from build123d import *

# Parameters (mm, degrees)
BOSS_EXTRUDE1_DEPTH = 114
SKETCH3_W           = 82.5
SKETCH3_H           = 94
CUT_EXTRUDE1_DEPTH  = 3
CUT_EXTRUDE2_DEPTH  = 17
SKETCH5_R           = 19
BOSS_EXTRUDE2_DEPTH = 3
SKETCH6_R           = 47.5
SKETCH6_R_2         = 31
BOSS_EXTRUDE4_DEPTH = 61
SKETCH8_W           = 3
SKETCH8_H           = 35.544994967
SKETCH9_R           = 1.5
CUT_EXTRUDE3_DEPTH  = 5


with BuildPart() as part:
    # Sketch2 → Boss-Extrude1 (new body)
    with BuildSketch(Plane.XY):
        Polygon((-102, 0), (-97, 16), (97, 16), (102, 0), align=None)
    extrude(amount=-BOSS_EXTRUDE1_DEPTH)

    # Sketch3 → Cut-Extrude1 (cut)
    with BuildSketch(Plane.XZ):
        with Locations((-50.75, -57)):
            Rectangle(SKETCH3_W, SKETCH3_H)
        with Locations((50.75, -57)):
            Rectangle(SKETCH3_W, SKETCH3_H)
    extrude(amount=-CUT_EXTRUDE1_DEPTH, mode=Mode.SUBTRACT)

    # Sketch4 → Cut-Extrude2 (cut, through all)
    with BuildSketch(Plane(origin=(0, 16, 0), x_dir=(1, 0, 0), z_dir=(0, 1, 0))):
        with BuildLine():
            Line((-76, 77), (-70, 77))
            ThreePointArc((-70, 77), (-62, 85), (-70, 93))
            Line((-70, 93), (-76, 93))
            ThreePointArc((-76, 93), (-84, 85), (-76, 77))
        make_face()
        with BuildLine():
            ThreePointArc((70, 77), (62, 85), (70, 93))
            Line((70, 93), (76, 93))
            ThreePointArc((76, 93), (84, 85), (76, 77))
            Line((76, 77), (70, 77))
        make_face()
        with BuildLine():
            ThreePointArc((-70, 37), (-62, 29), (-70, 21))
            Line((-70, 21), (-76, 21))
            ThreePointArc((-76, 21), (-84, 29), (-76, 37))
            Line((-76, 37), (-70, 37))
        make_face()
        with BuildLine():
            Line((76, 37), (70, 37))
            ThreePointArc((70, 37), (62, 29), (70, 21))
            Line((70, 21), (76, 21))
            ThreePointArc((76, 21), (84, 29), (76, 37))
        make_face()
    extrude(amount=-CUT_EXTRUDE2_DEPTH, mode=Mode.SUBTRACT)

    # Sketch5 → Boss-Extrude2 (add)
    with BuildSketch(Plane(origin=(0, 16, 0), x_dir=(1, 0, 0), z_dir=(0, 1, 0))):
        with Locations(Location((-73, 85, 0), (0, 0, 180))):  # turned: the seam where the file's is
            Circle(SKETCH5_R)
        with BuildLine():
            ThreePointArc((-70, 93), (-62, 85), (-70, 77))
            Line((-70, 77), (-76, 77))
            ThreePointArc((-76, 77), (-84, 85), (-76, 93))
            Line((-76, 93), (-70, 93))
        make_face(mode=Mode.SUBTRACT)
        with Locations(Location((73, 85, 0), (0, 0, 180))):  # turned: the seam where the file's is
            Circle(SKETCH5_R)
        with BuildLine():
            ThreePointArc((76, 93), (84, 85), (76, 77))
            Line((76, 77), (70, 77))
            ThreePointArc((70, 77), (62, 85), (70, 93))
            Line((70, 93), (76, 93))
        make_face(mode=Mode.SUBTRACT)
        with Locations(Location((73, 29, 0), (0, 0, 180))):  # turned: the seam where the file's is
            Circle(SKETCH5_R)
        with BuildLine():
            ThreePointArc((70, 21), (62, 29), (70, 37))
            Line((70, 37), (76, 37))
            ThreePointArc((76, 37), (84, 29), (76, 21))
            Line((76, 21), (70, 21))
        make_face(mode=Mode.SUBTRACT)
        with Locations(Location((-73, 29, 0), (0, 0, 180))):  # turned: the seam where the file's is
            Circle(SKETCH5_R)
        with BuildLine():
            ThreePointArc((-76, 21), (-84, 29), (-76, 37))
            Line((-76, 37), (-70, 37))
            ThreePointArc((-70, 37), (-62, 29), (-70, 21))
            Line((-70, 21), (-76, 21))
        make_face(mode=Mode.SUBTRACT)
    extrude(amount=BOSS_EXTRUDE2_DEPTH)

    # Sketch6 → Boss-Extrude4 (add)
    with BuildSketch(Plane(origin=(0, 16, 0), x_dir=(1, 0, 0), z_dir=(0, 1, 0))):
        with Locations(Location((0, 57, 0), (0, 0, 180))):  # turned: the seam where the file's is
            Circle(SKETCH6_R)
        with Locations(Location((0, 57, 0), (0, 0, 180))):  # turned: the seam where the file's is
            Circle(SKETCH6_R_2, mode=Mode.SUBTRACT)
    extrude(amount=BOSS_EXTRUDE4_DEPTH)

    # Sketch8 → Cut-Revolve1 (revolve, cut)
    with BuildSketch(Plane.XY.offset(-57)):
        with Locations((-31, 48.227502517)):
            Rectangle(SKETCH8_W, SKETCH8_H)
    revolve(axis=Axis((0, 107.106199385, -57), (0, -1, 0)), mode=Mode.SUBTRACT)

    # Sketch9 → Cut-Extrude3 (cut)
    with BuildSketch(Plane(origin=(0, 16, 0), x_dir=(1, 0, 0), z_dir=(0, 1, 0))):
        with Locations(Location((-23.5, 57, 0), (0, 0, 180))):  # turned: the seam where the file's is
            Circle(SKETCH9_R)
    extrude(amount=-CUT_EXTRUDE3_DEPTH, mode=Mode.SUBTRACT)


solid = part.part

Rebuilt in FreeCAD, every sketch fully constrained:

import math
import FreeCAD as App
import Part
import Sketcher
from FreeCAD import Vector
Q = App.Units.Quantity

doc = App.newDocument("Part")
params = doc.addObject("Spreadsheet::Sheet", "Params")
for row, (alias, value) in enumerate([
    ("sketch1_width", "204 mm"),
    ("sketch1_width2", "194 mm"),
    ("pad1_length", "114 mm"),
    ("sketch2_height", "94 mm"),
    ("sketch2_width", "82.5 mm"),
    ("pocket1_length", "3 mm"),
    ("sketch3_radius", "8 mm"),
    ("sketch3_width", "6 mm"),
    ("sketch4_diameter", "38 mm"),
    ("sketch4_radius", "8 mm"),
    ("sketch4_width", "6 mm"),
    ("pad2_length", "3 mm"),
    ("sketch5_diameter", "95 mm"),
    ("sketch5_diameter2", "62 mm"),
    ("pad3_length", "61 mm"),
    ("sketch6_width", "3 mm"),
    ("groove_angle", "360 deg"),
    ("sketch7_diameter", "3 mm"),
    ("pocket3_length", "5 mm"),
], start=1):
    params.set(f"A{row}", alias)
    params.set(f"B{row}", "=" + value)
    params.setAlias(f"B{row}", alias)

body = doc.addObject("PartDesign::Body", "Body")

sketch1 = body.newObject("Sketcher::SketchObject", "Sketch")
sketch1.AttachmentSupport = (doc.getObject("XY_Plane"), [""])
sketch1.MapMode = "FlatFace"
sketch1.addGeometry(Part.LineSegment(Vector(-97, 16, 0), Vector(-102, 0, 0)), False)
sketch1.addGeometry(Part.LineSegment(Vector(-102, 0, 0), Vector(102, 0, 0)), False)
sketch1.addGeometry(Part.LineSegment(Vector(102, 0, 0), Vector(97, 16, 0)), False)
sketch1.addGeometry(Part.LineSegment(Vector(97, 16, 0), Vector(-97, 16, 0)), False)
sketch1.addConstraint(Sketcher.Constraint("Coincident", 0, 2, 1, 1))
sketch1.addConstraint(Sketcher.Constraint("Coincident", 1, 2, 2, 1))
sketch1.addConstraint(Sketcher.Constraint("Coincident", 2, 2, 3, 1))
sketch1.addConstraint(Sketcher.Constraint("Coincident", 3, 2, 0, 1))
sketch1.addConstraint(Sketcher.Constraint("Horizontal", 1))
sketch1.addConstraint(Sketcher.Constraint("Horizontal", 3))
sketch1.addConstraint(Sketcher.Constraint("Symmetric", 0, 2, 1, 2, -1, 1))
sketch1.addConstraint(Sketcher.Constraint("Equal", 0, 2))
sketch1.addConstraint(Sketcher.Constraint("DistanceX", 1, 1, 1, 2, Q("204 mm")))
sketch1.addConstraint(Sketcher.Constraint("DistanceX", 3, 2, 3, 1, Q("194 mm")))
sketch1.addConstraint(Sketcher.Constraint("DistanceY", -1, 1, 2, 2, Q("16 mm")))
sketch1.setExpression("Constraints[8]", "Params.sketch1_width")
sketch1.setExpression("Constraints[9]", "Params.sketch1_width2")
pad1 = body.newObject("PartDesign::Pad", "Pad")
pad1.Profile = sketch1
pad1.setExpression("Length", "Params.pad1_length")
pad1.Reversed = True

sketch2 = body.newObject("Sketcher::SketchObject", "Sketch001")
sketch2.AttachmentSupport = (doc.getObject("XZ_Plane"), [""])
sketch2.MapMode = "FlatFace"
sketch2.addGeometry(Part.LineSegment(Vector(-92, -10, 0), Vector(-92, -104, 0)), False)
sketch2.addGeometry(Part.LineSegment(Vector(-92, -104, 0), Vector(-10, -104, 0)), False)
sketch2.addGeometry(Part.LineSegment(Vector(-10, -104, 0), Vector(-10, -10, 0)), False)
sketch2.addGeometry(Part.LineSegment(Vector(-10, -10, 0), Vector(-92, -10, 0)), False)
sketch2.addGeometry(Part.LineSegment(Vector(10, -10, 0), Vector(10, -104, 0)), False)
sketch2.addGeometry(Part.LineSegment(Vector(10, -104, 0), Vector(92, -104, 0)), False)
sketch2.addGeometry(Part.LineSegment(Vector(92, -104, 0), Vector(92, -10, 0)), False)
sketch2.addGeometry(Part.LineSegment(Vector(92, -10, 0), Vector(10, -10, 0)), False)
sketch2.addConstraint(Sketcher.Constraint("Coincident", 0, 2, 1, 1))
sketch2.addConstraint(Sketcher.Constraint("Coincident", 1, 2, 2, 1))
sketch2.addConstraint(Sketcher.Constraint("Coincident", 2, 2, 3, 1))
sketch2.addConstraint(Sketcher.Constraint("Coincident", 3, 2, 0, 1))
sketch2.addConstraint(Sketcher.Constraint("Coincident", 4, 2, 5, 1))
sketch2.addConstraint(Sketcher.Constraint("Coincident", 5, 2, 6, 1))
sketch2.addConstraint(Sketcher.Constraint("Coincident", 6, 2, 7, 1))
sketch2.addConstraint(Sketcher.Constraint("Coincident", 7, 2, 4, 1))
sketch2.addConstraint(Sketcher.Constraint("Vertical", 0))
sketch2.addConstraint(Sketcher.Constraint("Horizontal", 1))
sketch2.addConstraint(Sketcher.Constraint("Vertical", 2))
sketch2.addConstraint(Sketcher.Constraint("Horizontal", 3))
sketch2.addConstraint(Sketcher.Constraint("Vertical", 4))
sketch2.addConstraint(Sketcher.Constraint("Horizontal", 5))
sketch2.addConstraint(Sketcher.Constraint("Vertical", 6))
sketch2.addConstraint(Sketcher.Constraint("Horizontal", 7))
sketch2.addConstraint(Sketcher.Constraint("Symmetric", 1, 2, 4, 2, -2))
sketch2.addConstraint(Sketcher.Constraint("Symmetric", 3, 2, 6, 2, -2))
sketch2.addConstraint(Sketcher.Constraint("DistanceY", 0, 2, 0, 1, Q("94 mm")))
sketch2.addConstraint(Sketcher.Constraint("DistanceX", 1, 1, 1, 2, Q("82.5 mm")))
sketch2.addConstraint(Sketcher.Constraint("DistanceX", 0, 2, -1, 1, Q("92 mm")))
sketch2.addConstraint(Sketcher.Constraint("DistanceY", 0, 2, -1, 1, Q("104 mm")))
sketch2.setExpression("Constraints[18]", "Params.sketch2_height")
sketch2.setExpression("Constraints[19]", "Params.sketch2_width")
pocket1 = body.newObject("PartDesign::Pocket", "Pocket")
pocket1.Profile = sketch2
pocket1.setExpression("Length", "Params.pocket1_length")

sketch3 = body.newObject("Sketcher::SketchObject", "Sketch002")
sketch3.AttachmentSupport = (doc.getObject("XZ_Plane"), [""])
sketch3.MapMode = "FlatFace"
sketch3.AttachmentOffset = App.Placement(Vector(0, 0, -16), App.Rotation())
sketch3.addGeometry(Part.LineSegment(Vector(-76, -77, 0), Vector(-70, -77, 0)), False)
sketch3.addGeometry(Part.ArcOfCircle(Part.Circle(Vector(-70, -85, 0), Vector(0, 0, 1), 8), math.radians(-90), math.radians(90)), False)
sketch3.addGeometry(Part.LineSegment(Vector(-70, -93, 0), Vector(-76, -93, 0)), False)
sketch3.addGeometry(Part.ArcOfCircle(Part.Circle(Vector(-76, -85, 0), Vector(0, 0, 1), 8), math.radians(90), math.radians(270)), False)
sketch3.addGeometry(Part.ArcOfCircle(Part.Circle(Vector(70, -85, 0), Vector(0, 0, 1), 8), math.radians(90), math.radians(270)), False)
sketch3.addGeometry(Part.LineSegment(Vector(70, -77, 0), Vector(76, -77, 0)), False)
sketch3.addGeometry(Part.ArcOfCircle(Part.Circle(Vector(76, -85, 0), Vector(0, 0, 1), 8), math.radians(-90), math.radians(90)), False)
sketch3.addGeometry(Part.LineSegment(Vector(76, -93, 0), Vector(70, -93, 0)), False)
sketch3.addGeometry(Part.ArcOfCircle(Part.Circle(Vector(-70, -29, 0), Vector(0, 0, 1), 8), math.radians(-90), math.radians(90)), False)
sketch3.addGeometry(Part.LineSegment(Vector(-70, -37, 0), Vector(-76, -37, 0)), False)
sketch3.addGeometry(Part.ArcOfCircle(Part.Circle(Vector(-76, -29, 0), Vector(0, 0, 1), 8), math.radians(90), math.radians(270)), False)
sketch3.addGeometry(Part.LineSegment(Vector(-76, -21, 0), Vector(-70, -21, 0)), False)
sketch3.addGeometry(Part.LineSegment(Vector(76, -37, 0), Vector(70, -37, 0)), False)
sketch3.addGeometry(Part.ArcOfCircle(Part.Circle(Vector(70, -29, 0), Vector(0, 0, 1), 8), math.radians(90), math.radians(270)), False)
sketch3.addGeometry(Part.LineSegment(Vector(70, -21, 0), Vector(76, -21, 0)), False)
sketch3.addGeometry(Part.ArcOfCircle(Part.Circle(Vector(76, -29, 0), Vector(0, 0, 1), 8), math.radians(-90), math.radians(90)), False)
sketch3.addConstraint(Sketcher.Constraint("Tangent", 0, 2, 1, 2))
sketch3.addConstraint(Sketcher.Constraint("Tangent", 1, 1, 2, 1))
sketch3.addConstraint(Sketcher.Constraint("Tangent", 2, 2, 3, 2))
sketch3.addConstraint(Sketcher.Constraint("Tangent", 3, 1, 0, 1))
sketch3.addConstraint(Sketcher.Constraint("Tangent", 4, 1, 5, 1))
sketch3.addConstraint(Sketcher.Constraint("Tangent", 5, 2, 6, 2))
sketch3.addConstraint(Sketcher.Constraint("Tangent", 6, 1, 7, 1))
sketch3.addConstraint(Sketcher.Constraint("Tangent", 7, 2, 4, 2))
sketch3.addConstraint(Sketcher.Constraint("Tangent", 8, 1, 9, 1))
sketch3.addConstraint(Sketcher.Constraint("Tangent", 9, 2, 10, 2))
sketch3.addConstraint(Sketcher.Constraint("Tangent", 10, 1, 11, 1))
sketch3.addConstraint(Sketcher.Constraint("Tangent", 11, 2, 8, 2))
sketch3.addConstraint(Sketcher.Constraint("Tangent", 12, 2, 13, 2))
sketch3.addConstraint(Sketcher.Constraint("Tangent", 13, 1, 14, 1))
sketch3.addConstraint(Sketcher.Constraint("Tangent", 14, 2, 15, 2))
sketch3.addConstraint(Sketcher.Constraint("Tangent", 15, 1, 12, 1))
sketch3.addConstraint(Sketcher.Constraint("Horizontal", 0))
sketch3.addConstraint(Sketcher.Constraint("Horizontal", 2))
sketch3.addConstraint(Sketcher.Constraint("Horizontal", 5))
sketch3.addConstraint(Sketcher.Constraint("Horizontal", 7))
sketch3.addConstraint(Sketcher.Constraint("Horizontal", 9))
sketch3.addConstraint(Sketcher.Constraint("Horizontal", 11))
sketch3.addConstraint(Sketcher.Constraint("Horizontal", 12))
sketch3.addConstraint(Sketcher.Constraint("Horizontal", 14))
sketch3.addConstraint(Sketcher.Constraint("Equal", 3, 4))
sketch3.addConstraint(Sketcher.Constraint("Equal", 6, 8))
sketch3.addConstraint(Sketcher.Constraint("Equal", 10, 13))
sketch3.addConstraint(Sketcher.Constraint("Symmetric", 1, 3, 4, 3, -2))
sketch3.addConstraint(Sketcher.Constraint("Symmetric", 8, 3, 13, 3, -2))
sketch3.addConstraint(Sketcher.Constraint("Vertical", 1, 3, 8, 3))
sketch3.addConstraint(Sketcher.Constraint("Vertical", 3, 3, 10, 3))
sketch3.addConstraint(Sketcher.Constraint("Vertical", 6, 3, 15, 3))
sketch3.addConstraint(Sketcher.Constraint("Equal", 2, 5))
sketch3.addConstraint(Sketcher.Constraint("Radius", 1, Q("8 mm")))
sketch3.addConstraint(Sketcher.Constraint("DistanceX", 0, 1, 0, 2, Q("6 mm")))
sketch3.addConstraint(Sketcher.Constraint("DistanceX", 1, 3, -1, 1, Q("70 mm")))
sketch3.addConstraint(Sketcher.Constraint("DistanceY", 1, 3, -1, 1, Q("85 mm")))
sketch3.addConstraint(Sketcher.Constraint("DistanceY", 8, 3, -1, 1, Q("29 mm")))
sketch3.setExpression("Constraints[33]", "Params.sketch3_radius")
sketch3.setExpression("Constraints[34]", "Params.sketch3_width")
pocket2 = body.newObject("PartDesign::Pocket", "Pocket001")
pocket2.Profile = sketch3
pocket2.Type = "ThroughAll"
pocket2.Reversed = True

sketch4 = body.newObject("Sketcher::SketchObject", "Sketch003")
sketch4.AttachmentSupport = (doc.getObject("XZ_Plane"), [""])
sketch4.MapMode = "FlatFace"
sketch4.AttachmentOffset = App.Placement(Vector(0, 0, -16), App.Rotation())
sketch4.addGeometry(Part.Circle(Vector(-73, -85, 0), Vector(0, 0, 1), 19), False)
sketch4.addGeometry(Part.LineSegment(Vector(-76, -93, 0), Vector(-70, -93, 0)), False)
sketch4.addGeometry(Part.ArcOfCircle(Part.Circle(Vector(-70, -85, 0), Vector(0, 0, 1), 8), math.radians(-90), math.radians(90)), False)
sketch4.addGeometry(Part.LineSegment(Vector(-70, -77, 0), Vector(-76, -77, 0)), False)
sketch4.addGeometry(Part.ArcOfCircle(Part.Circle(Vector(-76, -85, 0), Vector(0, 0, 1), 8), math.radians(90), math.radians(270)), False)
sketch4.addGeometry(Part.Circle(Vector(73, -85, 0), Vector(0, 0, 1), 19), False)
sketch4.addGeometry(Part.LineSegment(Vector(70, -93, 0), Vector(76, -93, 0)), False)
sketch4.addGeometry(Part.ArcOfCircle(Part.Circle(Vector(76, -85, 0), Vector(0, 0, 1), 8), math.radians(-90), math.radians(90)), False)
sketch4.addGeometry(Part.LineSegment(Vector(76, -77, 0), Vector(70, -77, 0)), False)
sketch4.addGeometry(Part.ArcOfCircle(Part.Circle(Vector(70, -85, 0), Vector(0, 0, 1), 8), math.radians(90), math.radians(270)), False)
sketch4.addGeometry(Part.Circle(Vector(73, -29, 0), Vector(0, 0, 1), 19), False)
sketch4.addGeometry(Part.LineSegment(Vector(76, -21, 0), Vector(70, -21, 0)), False)
sketch4.addGeometry(Part.ArcOfCircle(Part.Circle(Vector(70, -29, 0), Vector(0, 0, 1), 8), math.radians(90), math.radians(270)), False)
sketch4.addGeometry(Part.LineSegment(Vector(70, -37, 0), Vector(76, -37, 0)), False)
sketch4.addGeometry(Part.ArcOfCircle(Part.Circle(Vector(76, -29, 0), Vector(0, 0, 1), 8), math.radians(-90), math.radians(90)), False)
sketch4.addGeometry(Part.Circle(Vector(-73, -29, 0), Vector(0, 0, 1), 19), False)
sketch4.addGeometry(Part.LineSegment(Vector(-70, -21, 0), Vector(-76, -21, 0)), False)
sketch4.addGeometry(Part.ArcOfCircle(Part.Circle(Vector(-76, -29, 0), Vector(0, 0, 1), 8), math.radians(90), math.radians(270)), False)
sketch4.addGeometry(Part.LineSegment(Vector(-76, -37, 0), Vector(-70, -37, 0)), False)
sketch4.addGeometry(Part.ArcOfCircle(Part.Circle(Vector(-70, -29, 0), Vector(0, 0, 1), 8), math.radians(-90), math.radians(90)), False)
sketch4.addConstraint(Sketcher.Constraint("Tangent", 1, 2, 2, 1))
sketch4.addConstraint(Sketcher.Constraint("Tangent", 2, 2, 3, 1))
sketch4.addConstraint(Sketcher.Constraint("Tangent", 3, 2, 4, 1))
sketch4.addConstraint(Sketcher.Constraint("Tangent", 4, 2, 1, 1))
sketch4.addConstraint(Sketcher.Constraint("Tangent", 6, 2, 7, 1))
sketch4.addConstraint(Sketcher.Constraint("Tangent", 7, 2, 8, 1))
sketch4.addConstraint(Sketcher.Constraint("Tangent", 8, 2, 9, 1))
sketch4.addConstraint(Sketcher.Constraint("Tangent", 9, 2, 6, 1))
sketch4.addConstraint(Sketcher.Constraint("Tangent", 11, 2, 12, 1))
sketch4.addConstraint(Sketcher.Constraint("Tangent", 12, 2, 13, 1))
sketch4.addConstraint(Sketcher.Constraint("Tangent", 13, 2, 14, 1))
sketch4.addConstraint(Sketcher.Constraint("Tangent", 14, 2, 11, 1))
sketch4.addConstraint(Sketcher.Constraint("Tangent", 16, 2, 17, 1))
sketch4.addConstraint(Sketcher.Constraint("Tangent", 17, 2, 18, 1))
sketch4.addConstraint(Sketcher.Constraint("Tangent", 18, 2, 19, 1))
sketch4.addConstraint(Sketcher.Constraint("Tangent", 19, 2, 16, 1))
sketch4.addConstraint(Sketcher.Constraint("Horizontal", 1))
sketch4.addConstraint(Sketcher.Constraint("Horizontal", 3))
sketch4.addConstraint(Sketcher.Constraint("Horizontal", 6))
sketch4.addConstraint(Sketcher.Constraint("Horizontal", 8))
sketch4.addConstraint(Sketcher.Constraint("Horizontal", 11))
sketch4.addConstraint(Sketcher.Constraint("Horizontal", 13))
sketch4.addConstraint(Sketcher.Constraint("Horizontal", 16))
sketch4.addConstraint(Sketcher.Constraint("Horizontal", 18))
sketch4.addConstraint(Sketcher.Constraint("Equal", 0, 5))
sketch4.addConstraint(Sketcher.Constraint("Equal", 4, 7))
sketch4.addConstraint(Sketcher.Constraint("Equal", 5, 10))
sketch4.addConstraint(Sketcher.Constraint("Equal", 9, 12))
sketch4.addConstraint(Sketcher.Constraint("Equal", 10, 15))
sketch4.addConstraint(Sketcher.Constraint("Equal", 14, 17))
sketch4.addConstraint(Sketcher.Constraint("Symmetric", 0, 3, 5, 3, -2))
sketch4.addConstraint(Sketcher.Constraint("Symmetric", 4, 3, 7, 3, -2))
sketch4.addConstraint(Sketcher.Constraint("Symmetric", 10, 3, 15, 3, -2))
sketch4.addConstraint(Sketcher.Constraint("Symmetric", 14, 3, 17, 3, -2))
sketch4.addConstraint(Sketcher.Constraint("Horizontal", 0, 3, 2, 3))
sketch4.addConstraint(Sketcher.Constraint("Horizontal", 10, 3, 12, 3))
sketch4.addConstraint(Sketcher.Constraint("Vertical", 5, 3, 10, 3))
sketch4.addConstraint(Sketcher.Constraint("Vertical", 9, 3, 12, 3))
sketch4.addConstraint(Sketcher.Constraint("Vertical", 7, 3, 14, 3))
sketch4.addConstraint(Sketcher.Constraint("Vertical", 2, 3, 19, 3))
sketch4.addConstraint(Sketcher.Constraint("Equal", 3, 6))
sketch4.addConstraint(Sketcher.Constraint("Diameter", 0, Q("38 mm")))
sketch4.addConstraint(Sketcher.Constraint("Radius", 2, Q("8 mm")))
sketch4.addConstraint(Sketcher.Constraint("DistanceX", 1, 1, 1, 2, Q("6 mm")))
sketch4.addConstraint(Sketcher.Constraint("DistanceX", 0, 3, -1, 1, Q("73 mm")))
sketch4.addConstraint(Sketcher.Constraint("DistanceY", 0, 3, -1, 1, Q("85 mm")))
sketch4.addConstraint(Sketcher.Constraint("DistanceX", 2, 3, -1, 1, Q("70 mm")))
sketch4.addConstraint(Sketcher.Constraint("DistanceY", 10, 3, -1, 1, Q("29 mm")))
sketch4.setExpression("Constraints[41]", "Params.sketch4_diameter")
sketch4.setExpression("Constraints[42]", "Params.sketch4_radius")
sketch4.setExpression("Constraints[43]", "Params.sketch4_width")
pad2 = body.newObject("PartDesign::Pad", "Pad001")
pad2.Profile = sketch4
pad2.setExpression("Length", "Params.pad2_length")
pad2.Reversed = True

sketch5 = body.newObject("Sketcher::SketchObject", "Sketch004")
sketch5.AttachmentSupport = (doc.getObject("XZ_Plane"), [""])
sketch5.MapMode = "FlatFace"
sketch5.AttachmentOffset = App.Placement(Vector(0, 0, -16), App.Rotation())
sketch5.addGeometry(Part.Circle(Vector(0, -57, 0), Vector(0, 0, 1), 48), False)
sketch5.addGeometry(Part.Circle(Vector(0, -57, 0), Vector(0, 0, 1), 31), False)
sketch5.addConstraint(Sketcher.Constraint("Coincident", 1, 3, 0, 3))
sketch5.addConstraint(Sketcher.Constraint("PointOnObject", 0, 3, -2))
sketch5.addConstraint(Sketcher.Constraint("Diameter", 0, Q("95 mm")))
sketch5.addConstraint(Sketcher.Constraint("Diameter", 1, Q("62 mm")))
sketch5.addConstraint(Sketcher.Constraint("DistanceY", 0, 3, -1, 1, Q("57 mm")))
sketch5.setExpression("Constraints[2]", "Params.sketch5_diameter")
sketch5.setExpression("Constraints[3]", "Params.sketch5_diameter2")
pad3 = body.newObject("PartDesign::Pad", "Pad002")
pad3.Profile = sketch5
pad3.setExpression("Length", "Params.pad3_length")
pad3.Reversed = True

sketch6 = body.newObject("Sketcher::SketchObject", "Sketch005")
sketch6.AttachmentSupport = (doc.getObject("XY_Plane"), [""])
sketch6.MapMode = "FlatFace"
sketch6.AttachmentOffset = App.Placement(Vector(0, 0, -57), App.Rotation())
sketch6.addGeometry(Part.LineSegment(Vector(-32.5, 66, 0), Vector(-32.5, 30.5, 0)), False)
sketch6.addGeometry(Part.LineSegment(Vector(-32.5, 30.5, 0), Vector(-29.5, 30.5, 0)), False)
sketch6.addGeometry(Part.LineSegment(Vector(-29.5, 30.5, 0), Vector(-29.5, 66, 0)), False)
sketch6.addGeometry(Part.LineSegment(Vector(-29.5, 66, 0), Vector(-32.5, 66, 0)), False)
sketch6.addConstraint(Sketcher.Constraint("Coincident", 0, 2, 1, 1))
sketch6.addConstraint(Sketcher.Constraint("Coincident", 1, 2, 2, 1))
sketch6.addConstraint(Sketcher.Constraint("Coincident", 2, 2, 3, 1))
sketch6.addConstraint(Sketcher.Constraint("Coincident", 3, 2, 0, 1))
sketch6.addConstraint(Sketcher.Constraint("Vertical", 0))
sketch6.addConstraint(Sketcher.Constraint("Horizontal", 1))
sketch6.addConstraint(Sketcher.Constraint("Vertical", 2))
sketch6.addConstraint(Sketcher.Constraint("Horizontal", 3))
sketch6.addConstraint(Sketcher.Constraint("DistanceX", 1, 1, 1, 2, Q("3 mm")))
sketch6.addConstraint(Sketcher.Constraint("DistanceY", -1, 1, 2, 2, Q("66 mm")))
sketch6.addConstraint(Sketcher.Constraint("DistanceX", 0, 2, -1, 1, Q("32.5 mm")))
sketch6.addConstraint(Sketcher.Constraint("DistanceY", 0, 2, 0, 1, Q("35.544995 mm")))
sketch6.setExpression("Constraints[8]", "Params.sketch6_width")
groove = body.newObject("PartDesign::Groove", "Groove")
groove.Profile = sketch6
groove.ReferenceAxis = (sketch6, ["V_Axis"])
groove.setExpression("Angle", "Params.groove_angle")

sketch7 = body.newObject("Sketcher::SketchObject", "Sketch006")
sketch7.AttachmentSupport = (doc.getObject("XZ_Plane"), [""])
sketch7.MapMode = "FlatFace"
sketch7.AttachmentOffset = App.Placement(Vector(0, 0, -16), App.Rotation())
sketch7.addGeometry(Part.Circle(Vector(-23.5, -57, 0), Vector(0, 0, 1), 1.5), False)
sketch7.addConstraint(Sketcher.Constraint("Diameter", 0, Q("3 mm")))
sketch7.addConstraint(Sketcher.Constraint("DistanceY", 0, 3, -1, 1, Q("57 mm")))
sketch7.addConstraint(Sketcher.Constraint("DistanceX", 0, 3, -1, 1, Q("23.5 mm")))
sketch7.setExpression("Constraints[0]", "Params.sketch7_diameter")
pocket3 = body.newObject("PartDesign::Pocket", "Pocket002")
pocket3.Profile = sketch7
pocket3.setExpression("Length", "Params.pocket3_length")
pocket3.Reversed = True

doc.recompute()
